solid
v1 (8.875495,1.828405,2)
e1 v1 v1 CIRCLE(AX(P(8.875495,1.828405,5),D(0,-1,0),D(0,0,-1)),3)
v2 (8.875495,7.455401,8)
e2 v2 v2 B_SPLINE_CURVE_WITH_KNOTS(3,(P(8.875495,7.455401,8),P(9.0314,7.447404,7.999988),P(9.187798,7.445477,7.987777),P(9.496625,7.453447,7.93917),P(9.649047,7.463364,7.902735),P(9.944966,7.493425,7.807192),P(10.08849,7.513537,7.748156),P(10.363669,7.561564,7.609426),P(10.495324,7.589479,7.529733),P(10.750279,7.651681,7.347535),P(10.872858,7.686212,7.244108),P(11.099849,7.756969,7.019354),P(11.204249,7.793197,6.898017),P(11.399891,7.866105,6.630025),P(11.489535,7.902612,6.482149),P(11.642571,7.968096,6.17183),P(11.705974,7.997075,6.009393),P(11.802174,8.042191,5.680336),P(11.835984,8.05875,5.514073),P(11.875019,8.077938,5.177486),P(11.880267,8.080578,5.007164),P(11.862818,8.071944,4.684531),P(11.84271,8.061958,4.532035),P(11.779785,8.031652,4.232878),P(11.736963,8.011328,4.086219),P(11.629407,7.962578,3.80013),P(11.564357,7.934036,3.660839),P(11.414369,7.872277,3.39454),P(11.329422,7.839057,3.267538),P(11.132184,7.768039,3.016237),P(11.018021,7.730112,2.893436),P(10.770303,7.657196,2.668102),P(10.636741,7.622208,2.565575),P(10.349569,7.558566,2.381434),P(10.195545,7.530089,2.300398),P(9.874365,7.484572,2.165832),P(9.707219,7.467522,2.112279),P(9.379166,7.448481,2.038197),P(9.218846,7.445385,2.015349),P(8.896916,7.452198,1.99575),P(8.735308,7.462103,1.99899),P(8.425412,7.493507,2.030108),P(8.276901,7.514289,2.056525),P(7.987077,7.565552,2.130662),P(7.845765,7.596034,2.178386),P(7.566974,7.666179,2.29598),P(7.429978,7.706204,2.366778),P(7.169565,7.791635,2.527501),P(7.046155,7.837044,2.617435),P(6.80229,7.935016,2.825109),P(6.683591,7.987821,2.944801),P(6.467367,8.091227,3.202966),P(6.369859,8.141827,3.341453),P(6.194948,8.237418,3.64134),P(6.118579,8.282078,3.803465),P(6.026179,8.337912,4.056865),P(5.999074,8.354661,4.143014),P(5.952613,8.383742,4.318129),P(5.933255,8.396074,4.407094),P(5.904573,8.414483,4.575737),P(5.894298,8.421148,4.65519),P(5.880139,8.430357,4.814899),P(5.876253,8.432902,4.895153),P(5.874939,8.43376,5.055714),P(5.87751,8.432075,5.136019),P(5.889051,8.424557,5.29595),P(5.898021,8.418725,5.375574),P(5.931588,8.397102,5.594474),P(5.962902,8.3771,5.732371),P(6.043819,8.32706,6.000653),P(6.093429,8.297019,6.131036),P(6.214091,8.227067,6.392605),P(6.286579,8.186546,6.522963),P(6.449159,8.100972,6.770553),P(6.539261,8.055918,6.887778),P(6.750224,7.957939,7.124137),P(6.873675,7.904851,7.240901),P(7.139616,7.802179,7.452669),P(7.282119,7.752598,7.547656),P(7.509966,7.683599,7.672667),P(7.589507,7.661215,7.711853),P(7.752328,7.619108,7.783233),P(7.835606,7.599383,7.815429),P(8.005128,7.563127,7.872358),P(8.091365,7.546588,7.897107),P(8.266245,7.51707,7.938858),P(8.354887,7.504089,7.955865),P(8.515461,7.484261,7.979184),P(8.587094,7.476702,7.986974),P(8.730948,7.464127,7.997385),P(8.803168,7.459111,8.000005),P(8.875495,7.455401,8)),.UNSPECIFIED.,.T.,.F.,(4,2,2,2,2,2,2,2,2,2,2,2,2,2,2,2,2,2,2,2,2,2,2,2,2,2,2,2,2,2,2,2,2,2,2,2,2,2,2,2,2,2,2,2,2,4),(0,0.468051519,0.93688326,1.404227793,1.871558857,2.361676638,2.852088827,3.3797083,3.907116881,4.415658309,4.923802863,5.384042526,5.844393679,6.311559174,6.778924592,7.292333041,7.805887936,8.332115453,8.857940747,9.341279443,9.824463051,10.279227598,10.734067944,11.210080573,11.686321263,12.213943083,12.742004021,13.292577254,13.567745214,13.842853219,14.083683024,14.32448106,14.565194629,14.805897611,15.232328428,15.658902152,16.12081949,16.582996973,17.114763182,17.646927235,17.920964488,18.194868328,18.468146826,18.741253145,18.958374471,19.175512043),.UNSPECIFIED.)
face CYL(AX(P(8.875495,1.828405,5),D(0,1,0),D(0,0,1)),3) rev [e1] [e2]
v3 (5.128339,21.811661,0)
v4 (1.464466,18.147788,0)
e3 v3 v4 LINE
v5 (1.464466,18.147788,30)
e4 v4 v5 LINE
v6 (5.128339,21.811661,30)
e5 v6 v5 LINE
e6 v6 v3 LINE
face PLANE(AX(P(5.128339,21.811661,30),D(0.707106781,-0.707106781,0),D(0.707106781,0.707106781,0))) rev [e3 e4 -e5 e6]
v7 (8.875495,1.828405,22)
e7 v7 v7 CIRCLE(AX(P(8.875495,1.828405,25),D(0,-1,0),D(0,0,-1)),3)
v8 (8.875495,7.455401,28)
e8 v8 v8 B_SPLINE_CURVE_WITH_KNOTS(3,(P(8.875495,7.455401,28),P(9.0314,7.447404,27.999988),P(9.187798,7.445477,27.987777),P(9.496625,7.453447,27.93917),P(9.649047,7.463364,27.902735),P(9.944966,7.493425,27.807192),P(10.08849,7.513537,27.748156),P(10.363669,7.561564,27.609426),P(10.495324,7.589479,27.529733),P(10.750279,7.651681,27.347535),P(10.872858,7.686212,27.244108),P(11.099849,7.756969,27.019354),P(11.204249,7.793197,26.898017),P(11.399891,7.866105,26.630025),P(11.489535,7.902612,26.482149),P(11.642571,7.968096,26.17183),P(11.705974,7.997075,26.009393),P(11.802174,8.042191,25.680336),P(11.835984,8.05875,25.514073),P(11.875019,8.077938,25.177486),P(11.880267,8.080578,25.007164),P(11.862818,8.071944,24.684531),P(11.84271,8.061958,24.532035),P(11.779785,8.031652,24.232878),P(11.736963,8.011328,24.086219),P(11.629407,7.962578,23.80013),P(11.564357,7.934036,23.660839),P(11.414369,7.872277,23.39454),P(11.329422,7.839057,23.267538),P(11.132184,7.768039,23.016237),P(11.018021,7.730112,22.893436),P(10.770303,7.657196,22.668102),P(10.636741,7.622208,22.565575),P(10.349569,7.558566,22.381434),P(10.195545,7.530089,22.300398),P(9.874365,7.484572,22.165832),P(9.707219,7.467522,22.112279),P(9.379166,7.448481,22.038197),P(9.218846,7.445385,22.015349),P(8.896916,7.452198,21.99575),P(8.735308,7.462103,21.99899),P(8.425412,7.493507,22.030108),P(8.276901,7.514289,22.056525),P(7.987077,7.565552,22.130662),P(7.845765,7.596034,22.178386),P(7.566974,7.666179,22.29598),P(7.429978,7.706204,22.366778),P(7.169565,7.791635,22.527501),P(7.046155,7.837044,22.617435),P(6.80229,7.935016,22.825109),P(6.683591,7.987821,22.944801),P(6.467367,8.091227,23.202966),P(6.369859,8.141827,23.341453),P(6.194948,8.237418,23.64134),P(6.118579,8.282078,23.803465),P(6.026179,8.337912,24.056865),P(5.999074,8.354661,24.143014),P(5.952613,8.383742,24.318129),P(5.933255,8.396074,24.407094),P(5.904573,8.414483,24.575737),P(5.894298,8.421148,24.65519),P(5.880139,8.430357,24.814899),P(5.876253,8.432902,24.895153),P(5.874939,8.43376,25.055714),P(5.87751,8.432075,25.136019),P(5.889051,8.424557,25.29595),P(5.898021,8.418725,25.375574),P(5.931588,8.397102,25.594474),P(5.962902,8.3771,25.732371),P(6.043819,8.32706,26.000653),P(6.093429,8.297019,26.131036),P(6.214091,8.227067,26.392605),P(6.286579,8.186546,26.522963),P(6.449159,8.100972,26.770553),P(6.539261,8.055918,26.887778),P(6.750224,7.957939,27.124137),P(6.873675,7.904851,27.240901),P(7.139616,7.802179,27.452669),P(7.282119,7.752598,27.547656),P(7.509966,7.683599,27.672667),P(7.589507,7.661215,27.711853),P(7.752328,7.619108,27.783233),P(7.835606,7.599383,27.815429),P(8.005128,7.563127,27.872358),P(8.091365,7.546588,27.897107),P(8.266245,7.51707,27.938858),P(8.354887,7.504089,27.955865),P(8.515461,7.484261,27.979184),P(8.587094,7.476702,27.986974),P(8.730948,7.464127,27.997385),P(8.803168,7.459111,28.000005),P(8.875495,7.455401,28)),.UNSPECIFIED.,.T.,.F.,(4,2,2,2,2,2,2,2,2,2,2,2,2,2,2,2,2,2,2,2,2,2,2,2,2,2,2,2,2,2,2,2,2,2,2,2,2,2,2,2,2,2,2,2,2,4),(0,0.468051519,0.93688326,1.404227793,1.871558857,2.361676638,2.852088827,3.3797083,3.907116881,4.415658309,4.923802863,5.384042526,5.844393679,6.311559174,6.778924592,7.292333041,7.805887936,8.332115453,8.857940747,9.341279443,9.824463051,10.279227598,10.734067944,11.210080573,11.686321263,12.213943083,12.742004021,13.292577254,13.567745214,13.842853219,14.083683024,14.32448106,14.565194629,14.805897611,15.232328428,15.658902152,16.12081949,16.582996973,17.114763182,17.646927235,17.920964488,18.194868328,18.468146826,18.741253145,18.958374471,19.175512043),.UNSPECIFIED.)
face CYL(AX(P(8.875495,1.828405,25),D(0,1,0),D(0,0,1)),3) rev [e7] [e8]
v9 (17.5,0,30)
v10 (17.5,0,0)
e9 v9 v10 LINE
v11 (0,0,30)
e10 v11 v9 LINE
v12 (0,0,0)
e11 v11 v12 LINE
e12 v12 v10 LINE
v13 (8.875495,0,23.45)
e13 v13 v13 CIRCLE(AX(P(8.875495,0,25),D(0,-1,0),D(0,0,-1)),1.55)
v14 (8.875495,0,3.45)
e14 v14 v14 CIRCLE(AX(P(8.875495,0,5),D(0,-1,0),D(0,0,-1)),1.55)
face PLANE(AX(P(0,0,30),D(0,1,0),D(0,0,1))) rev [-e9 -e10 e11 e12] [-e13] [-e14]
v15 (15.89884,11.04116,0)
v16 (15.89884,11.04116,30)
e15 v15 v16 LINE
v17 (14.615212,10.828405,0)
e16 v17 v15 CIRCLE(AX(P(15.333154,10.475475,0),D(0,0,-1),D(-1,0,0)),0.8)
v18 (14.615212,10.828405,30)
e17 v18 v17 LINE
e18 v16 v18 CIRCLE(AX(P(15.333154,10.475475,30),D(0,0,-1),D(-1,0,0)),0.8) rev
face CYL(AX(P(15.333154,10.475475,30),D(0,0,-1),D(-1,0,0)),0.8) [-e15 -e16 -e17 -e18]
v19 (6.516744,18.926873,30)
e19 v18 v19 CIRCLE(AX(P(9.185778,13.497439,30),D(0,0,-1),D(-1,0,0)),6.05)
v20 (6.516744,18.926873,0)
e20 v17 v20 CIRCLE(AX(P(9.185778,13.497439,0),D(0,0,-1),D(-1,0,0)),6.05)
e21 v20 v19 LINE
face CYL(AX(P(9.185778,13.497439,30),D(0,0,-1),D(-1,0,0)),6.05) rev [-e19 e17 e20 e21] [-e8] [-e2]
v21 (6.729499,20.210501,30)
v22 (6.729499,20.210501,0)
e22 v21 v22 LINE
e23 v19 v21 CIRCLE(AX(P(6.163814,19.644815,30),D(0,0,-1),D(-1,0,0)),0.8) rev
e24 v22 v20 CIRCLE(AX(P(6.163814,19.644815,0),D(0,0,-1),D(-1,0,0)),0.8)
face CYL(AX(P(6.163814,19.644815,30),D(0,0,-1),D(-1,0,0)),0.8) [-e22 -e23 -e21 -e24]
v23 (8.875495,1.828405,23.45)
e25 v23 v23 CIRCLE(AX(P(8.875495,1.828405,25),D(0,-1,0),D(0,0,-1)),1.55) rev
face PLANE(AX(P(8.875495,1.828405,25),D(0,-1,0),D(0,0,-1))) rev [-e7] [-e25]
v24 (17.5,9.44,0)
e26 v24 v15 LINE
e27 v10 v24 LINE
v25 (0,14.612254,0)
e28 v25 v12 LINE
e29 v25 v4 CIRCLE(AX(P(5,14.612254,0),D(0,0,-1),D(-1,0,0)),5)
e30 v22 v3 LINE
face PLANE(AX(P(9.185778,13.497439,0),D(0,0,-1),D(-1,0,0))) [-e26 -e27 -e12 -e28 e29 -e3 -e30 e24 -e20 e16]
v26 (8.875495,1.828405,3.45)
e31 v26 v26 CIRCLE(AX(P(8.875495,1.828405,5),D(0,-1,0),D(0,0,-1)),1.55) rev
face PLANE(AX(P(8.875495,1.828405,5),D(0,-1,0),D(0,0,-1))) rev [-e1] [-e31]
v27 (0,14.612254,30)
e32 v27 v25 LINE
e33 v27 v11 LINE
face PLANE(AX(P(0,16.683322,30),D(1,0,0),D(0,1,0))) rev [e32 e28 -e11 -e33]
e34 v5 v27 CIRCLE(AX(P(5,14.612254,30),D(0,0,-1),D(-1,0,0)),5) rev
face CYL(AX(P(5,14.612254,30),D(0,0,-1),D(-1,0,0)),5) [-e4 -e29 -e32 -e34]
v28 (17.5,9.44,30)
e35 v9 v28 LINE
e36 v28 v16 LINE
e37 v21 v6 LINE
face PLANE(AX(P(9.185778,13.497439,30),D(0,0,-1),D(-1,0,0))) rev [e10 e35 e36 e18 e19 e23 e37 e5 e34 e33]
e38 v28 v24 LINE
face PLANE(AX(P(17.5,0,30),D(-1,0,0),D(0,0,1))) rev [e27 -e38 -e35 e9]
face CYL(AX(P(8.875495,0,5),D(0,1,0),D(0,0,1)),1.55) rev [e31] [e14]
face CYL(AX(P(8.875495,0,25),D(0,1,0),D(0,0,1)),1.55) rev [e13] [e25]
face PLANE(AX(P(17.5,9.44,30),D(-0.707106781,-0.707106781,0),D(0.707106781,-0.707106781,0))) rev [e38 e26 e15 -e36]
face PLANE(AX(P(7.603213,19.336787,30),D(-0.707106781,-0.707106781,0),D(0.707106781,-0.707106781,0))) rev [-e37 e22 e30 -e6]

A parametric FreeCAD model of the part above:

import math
import FreeCAD as App
import Part
import Sketcher

V = App.Vector
Q = App.Units.Quantity


def edges_at(feature, points):
    """Names of the edges that pass closest to the given points."""
    edges = feature.Shape.Edges
    near = lambda p: min(range(len(edges)), key=lambda i: edges[i].distToShape(Part.Vertex(*p))[0])
    return sorted({f"Edge{near(p) + 1}" for p in points})

doc = App.newDocument("Part")
params = doc.addObject("Spreadsheet::Sheet", "Params")
for row, (alias, value) in enumerate([
    ("sketch1_radius", "6.05 mm"),
    ("sketch1_width", "17.5 mm"),
    ("sketch1_length", "3.5 mm"),
    ("sketch1_height", "9.44 mm"),
    ("pad1_length", "30 mm"),
    ("fillet_radius", "0.8 mm"),
    ("sketch2_diameter", "6 mm"),
    ("pocket1_length", "9 mm"),
    ("sketch3_diameter", "3.1 mm"),
    ("fillet2_radius", "5 mm"),
], start=1):
    params.set(f"A{row}", alias)
    params.set(f"B{row}", "=" + value)
    params.setAlias(f"B{row}", alias)

body = doc.addObject("PartDesign::Body", "Body")

sketch1 = body.newObject("Sketcher::SketchObject", "Sketch")
sketch1.AttachmentSupport = (doc.getObject("XY_Plane"), [""])
sketch1.MapMode = "FlatFace"
sketch1.addGeometry(Part.LineSegment(V(0, 0, 0), V(17.5, 0, 0)), False)
sketch1.addGeometry(Part.LineSegment(V(17.5, 0, 0), V(17.5, 9.44, 0)), False)
sketch1.addGeometry(Part.LineSegment(V(17.5, 9.44, 0), V(15.025126, 11.914874, 0)), False)
sketch1.addGeometry(Part.ArcOfCircle(Part.Circle(V(9.185778, 13.497439, 0), V(0, 0, 1), 6.05), math.radians(105.163897), math.radians(344.836103)), False)
sketch1.addGeometry(Part.LineSegment(V(7.603213, 19.336787, 0), V(5.128339, 21.811661, 0)), False)
sketch1.addGeometry(Part.LineSegment(V(5.128339, 21.811661, 0), V(0, 16.683322, 0)), False)
sketch1.addGeometry(Part.LineSegment(V(0, 16.683322, 0), V(0, 0, 0)), False)
sketch1.addConstraint(Sketcher.Constraint("Coincident", 0, 2, 1, 1))
sketch1.addConstraint(Sketcher.Constraint("Coincident", 1, 2, 2, 1))
sketch1.addConstraint(Sketcher.Constraint("Coincident", 2, 2, 3, 2))
sketch1.addConstraint(Sketcher.Constraint("Coincident", 3, 1, 4, 1))
sketch1.addConstraint(Sketcher.Constraint("Coincident", 4, 2, 5, 1))
sketch1.addConstraint(Sketcher.Constraint("Coincident", 5, 2, 6, 1))
sketch1.addConstraint(Sketcher.Constraint("Coincident", 6, 2, 0, 1))
sketch1.addConstraint(Sketcher.Constraint("Horizontal", 0))
sketch1.addConstraint(Sketcher.Constraint("Vertical", 1))
sketch1.addConstraint(Sketcher.Constraint("Vertical", 6))
sketch1.addConstraint(Sketcher.Constraint("Coincident", 6, 2, -1, 1))
sketch1.addConstraint(Sketcher.Constraint("Parallel", 2, 4))
sketch1.addConstraint(Sketcher.Constraint("Perpendicular", 4, 5))
sketch1.addConstraint(Sketcher.Constraint("Equal", 2, 4))
sketch1.addConstraint(Sketcher.Constraint("Angle", 2, Q("135 deg")))
sketch1.addConstraint(Sketcher.Constraint("Radius", 3, 6.05))
sketch1.addConstraint(Sketcher.Constraint("DistanceX", 0, 1, 0, 2, 17.5))
sketch1.addConstraint(Sketcher.Constraint("Distance", 2, 3.5))
sketch1.addConstraint(Sketcher.Constraint("DistanceY", 1, 1, 1, 2, 9.44))
sketch1.addConstraint(Sketcher.Constraint("DistanceY", 6, 2, 6, 1, 16.683322))
sketch1.addConstraint(Sketcher.Constraint("DistanceX", -1, 1, 3, 3, 9.185778))
sketch1.setExpression("Constraints[15]", "Params.sketch1_radius")
sketch1.setExpression("Constraints[16]", "Params.sketch1_width")
sketch1.setExpression("Constraints[17]", "Params.sketch1_length")
sketch1.setExpression("Constraints[18]", "Params.sketch1_height")
pad1 = body.newObject("PartDesign::Pad", "Pad")
pad1.Profile = sketch1
pad1.setExpression("Length", "Params.pad1_length")
doc.recompute()

fillet = body.newObject("PartDesign::Fillet", "Fillet")
fillet.Base = (pad1, edges_at(pad1, [(7.603, 19.337, 15), (15.025, 11.915, 15)]))
fillet.setExpression("Radius", "Params.fillet_radius")

sketch2 = body.newObject("Sketcher::SketchObject", "Sketch001")
sketch2.AttachmentSupport = (doc.getObject("XZ_Plane"), [""])
sketch2.MapMode = "FlatFace"
sketch2.AttachmentOffset = App.Placement(V(0, 0, -10.828405), App.Rotation())
sketch2.addGeometry(Part.Circle(V(8.875495, 5, 0), V(0, 0, 1), 3), False)
sketch2.addGeometry(Part.Circle(V(8.875495, 25, 0), V(0, 0, 1), 3), False)
sketch2.addConstraint(Sketcher.Constraint("Equal", 0, 1))
sketch2.addConstraint(Sketcher.Constraint("Vertical", 0, 3, 1, 3))
sketch2.addConstraint(Sketcher.Constraint("Diameter", 0, 6.0))
sketch2.addConstraint(Sketcher.Constraint("DistanceY", -1, 1, 0, 3, 5.0))
sketch2.addConstraint(Sketcher.Constraint("DistanceY", -1, 1, 1, 3, 25.0))
sketch2.addConstraint(Sketcher.Constraint("DistanceX", -1, 1, 0, 3, 8.875495))
sketch2.setExpression("Constraints[2]", "Params.sketch2_diameter")
pocket1 = body.newObject("PartDesign::Pocket", "Pocket")
pocket1.Profile = sketch2
pocket1.setExpression("Length", "Params.pocket1_length")
pocket1.Reversed = True

sketch3 = body.newObject("Sketcher::SketchObject", "Sketch002")
sketch3.AttachmentSupport = (doc.getObject("XZ_Plane"), [""])
sketch3.MapMode = "FlatFace"
sketch3.AttachmentOffset = App.Placement(V(0, 0, -10.828405), App.Rotation())
sketch3.addGeometry(Part.Circle(V(8.875495, 5, 0), V(0, 0, 1), 1.55), False)
sketch3.addGeometry(Part.Circle(V(8.875495, 25, 0), V(0, 0, 1), 1.55), False)
sketch3.addConstraint(Sketcher.Constraint("Equal", 0, 1))
sketch3.addConstraint(Sketcher.Constraint("Vertical", 0, 3, 1, 3))
sketch3.addConstraint(Sketcher.Constraint("Diameter", 0, 3.1))
sketch3.addConstraint(Sketcher.Constraint("DistanceY", -1, 1, 0, 3, 5.0))
sketch3.addConstraint(Sketcher.Constraint("DistanceY", -1, 1, 1, 3, 25.0))
sketch3.addConstraint(Sketcher.Constraint("DistanceX", -1, 1, 0, 3, 8.875495))
sketch3.setExpression("Constraints[2]", "Params.sketch3_diameter")
pocket2 = body.newObject("PartDesign::Pocket", "Pocket001")
pocket2.Profile = sketch3
pocket2.Type = "ThroughAll"
pocket2.Reversed = True
doc.recompute()

fillet2 = body.newObject("PartDesign::Fillet", "Fillet001")
fillet2.Base = (pocket2, edges_at(pocket2, [(0, 16.683, 15)]))
fillet2.setExpression("Radius", "Params.fillet2_radius")

doc.recompute()
